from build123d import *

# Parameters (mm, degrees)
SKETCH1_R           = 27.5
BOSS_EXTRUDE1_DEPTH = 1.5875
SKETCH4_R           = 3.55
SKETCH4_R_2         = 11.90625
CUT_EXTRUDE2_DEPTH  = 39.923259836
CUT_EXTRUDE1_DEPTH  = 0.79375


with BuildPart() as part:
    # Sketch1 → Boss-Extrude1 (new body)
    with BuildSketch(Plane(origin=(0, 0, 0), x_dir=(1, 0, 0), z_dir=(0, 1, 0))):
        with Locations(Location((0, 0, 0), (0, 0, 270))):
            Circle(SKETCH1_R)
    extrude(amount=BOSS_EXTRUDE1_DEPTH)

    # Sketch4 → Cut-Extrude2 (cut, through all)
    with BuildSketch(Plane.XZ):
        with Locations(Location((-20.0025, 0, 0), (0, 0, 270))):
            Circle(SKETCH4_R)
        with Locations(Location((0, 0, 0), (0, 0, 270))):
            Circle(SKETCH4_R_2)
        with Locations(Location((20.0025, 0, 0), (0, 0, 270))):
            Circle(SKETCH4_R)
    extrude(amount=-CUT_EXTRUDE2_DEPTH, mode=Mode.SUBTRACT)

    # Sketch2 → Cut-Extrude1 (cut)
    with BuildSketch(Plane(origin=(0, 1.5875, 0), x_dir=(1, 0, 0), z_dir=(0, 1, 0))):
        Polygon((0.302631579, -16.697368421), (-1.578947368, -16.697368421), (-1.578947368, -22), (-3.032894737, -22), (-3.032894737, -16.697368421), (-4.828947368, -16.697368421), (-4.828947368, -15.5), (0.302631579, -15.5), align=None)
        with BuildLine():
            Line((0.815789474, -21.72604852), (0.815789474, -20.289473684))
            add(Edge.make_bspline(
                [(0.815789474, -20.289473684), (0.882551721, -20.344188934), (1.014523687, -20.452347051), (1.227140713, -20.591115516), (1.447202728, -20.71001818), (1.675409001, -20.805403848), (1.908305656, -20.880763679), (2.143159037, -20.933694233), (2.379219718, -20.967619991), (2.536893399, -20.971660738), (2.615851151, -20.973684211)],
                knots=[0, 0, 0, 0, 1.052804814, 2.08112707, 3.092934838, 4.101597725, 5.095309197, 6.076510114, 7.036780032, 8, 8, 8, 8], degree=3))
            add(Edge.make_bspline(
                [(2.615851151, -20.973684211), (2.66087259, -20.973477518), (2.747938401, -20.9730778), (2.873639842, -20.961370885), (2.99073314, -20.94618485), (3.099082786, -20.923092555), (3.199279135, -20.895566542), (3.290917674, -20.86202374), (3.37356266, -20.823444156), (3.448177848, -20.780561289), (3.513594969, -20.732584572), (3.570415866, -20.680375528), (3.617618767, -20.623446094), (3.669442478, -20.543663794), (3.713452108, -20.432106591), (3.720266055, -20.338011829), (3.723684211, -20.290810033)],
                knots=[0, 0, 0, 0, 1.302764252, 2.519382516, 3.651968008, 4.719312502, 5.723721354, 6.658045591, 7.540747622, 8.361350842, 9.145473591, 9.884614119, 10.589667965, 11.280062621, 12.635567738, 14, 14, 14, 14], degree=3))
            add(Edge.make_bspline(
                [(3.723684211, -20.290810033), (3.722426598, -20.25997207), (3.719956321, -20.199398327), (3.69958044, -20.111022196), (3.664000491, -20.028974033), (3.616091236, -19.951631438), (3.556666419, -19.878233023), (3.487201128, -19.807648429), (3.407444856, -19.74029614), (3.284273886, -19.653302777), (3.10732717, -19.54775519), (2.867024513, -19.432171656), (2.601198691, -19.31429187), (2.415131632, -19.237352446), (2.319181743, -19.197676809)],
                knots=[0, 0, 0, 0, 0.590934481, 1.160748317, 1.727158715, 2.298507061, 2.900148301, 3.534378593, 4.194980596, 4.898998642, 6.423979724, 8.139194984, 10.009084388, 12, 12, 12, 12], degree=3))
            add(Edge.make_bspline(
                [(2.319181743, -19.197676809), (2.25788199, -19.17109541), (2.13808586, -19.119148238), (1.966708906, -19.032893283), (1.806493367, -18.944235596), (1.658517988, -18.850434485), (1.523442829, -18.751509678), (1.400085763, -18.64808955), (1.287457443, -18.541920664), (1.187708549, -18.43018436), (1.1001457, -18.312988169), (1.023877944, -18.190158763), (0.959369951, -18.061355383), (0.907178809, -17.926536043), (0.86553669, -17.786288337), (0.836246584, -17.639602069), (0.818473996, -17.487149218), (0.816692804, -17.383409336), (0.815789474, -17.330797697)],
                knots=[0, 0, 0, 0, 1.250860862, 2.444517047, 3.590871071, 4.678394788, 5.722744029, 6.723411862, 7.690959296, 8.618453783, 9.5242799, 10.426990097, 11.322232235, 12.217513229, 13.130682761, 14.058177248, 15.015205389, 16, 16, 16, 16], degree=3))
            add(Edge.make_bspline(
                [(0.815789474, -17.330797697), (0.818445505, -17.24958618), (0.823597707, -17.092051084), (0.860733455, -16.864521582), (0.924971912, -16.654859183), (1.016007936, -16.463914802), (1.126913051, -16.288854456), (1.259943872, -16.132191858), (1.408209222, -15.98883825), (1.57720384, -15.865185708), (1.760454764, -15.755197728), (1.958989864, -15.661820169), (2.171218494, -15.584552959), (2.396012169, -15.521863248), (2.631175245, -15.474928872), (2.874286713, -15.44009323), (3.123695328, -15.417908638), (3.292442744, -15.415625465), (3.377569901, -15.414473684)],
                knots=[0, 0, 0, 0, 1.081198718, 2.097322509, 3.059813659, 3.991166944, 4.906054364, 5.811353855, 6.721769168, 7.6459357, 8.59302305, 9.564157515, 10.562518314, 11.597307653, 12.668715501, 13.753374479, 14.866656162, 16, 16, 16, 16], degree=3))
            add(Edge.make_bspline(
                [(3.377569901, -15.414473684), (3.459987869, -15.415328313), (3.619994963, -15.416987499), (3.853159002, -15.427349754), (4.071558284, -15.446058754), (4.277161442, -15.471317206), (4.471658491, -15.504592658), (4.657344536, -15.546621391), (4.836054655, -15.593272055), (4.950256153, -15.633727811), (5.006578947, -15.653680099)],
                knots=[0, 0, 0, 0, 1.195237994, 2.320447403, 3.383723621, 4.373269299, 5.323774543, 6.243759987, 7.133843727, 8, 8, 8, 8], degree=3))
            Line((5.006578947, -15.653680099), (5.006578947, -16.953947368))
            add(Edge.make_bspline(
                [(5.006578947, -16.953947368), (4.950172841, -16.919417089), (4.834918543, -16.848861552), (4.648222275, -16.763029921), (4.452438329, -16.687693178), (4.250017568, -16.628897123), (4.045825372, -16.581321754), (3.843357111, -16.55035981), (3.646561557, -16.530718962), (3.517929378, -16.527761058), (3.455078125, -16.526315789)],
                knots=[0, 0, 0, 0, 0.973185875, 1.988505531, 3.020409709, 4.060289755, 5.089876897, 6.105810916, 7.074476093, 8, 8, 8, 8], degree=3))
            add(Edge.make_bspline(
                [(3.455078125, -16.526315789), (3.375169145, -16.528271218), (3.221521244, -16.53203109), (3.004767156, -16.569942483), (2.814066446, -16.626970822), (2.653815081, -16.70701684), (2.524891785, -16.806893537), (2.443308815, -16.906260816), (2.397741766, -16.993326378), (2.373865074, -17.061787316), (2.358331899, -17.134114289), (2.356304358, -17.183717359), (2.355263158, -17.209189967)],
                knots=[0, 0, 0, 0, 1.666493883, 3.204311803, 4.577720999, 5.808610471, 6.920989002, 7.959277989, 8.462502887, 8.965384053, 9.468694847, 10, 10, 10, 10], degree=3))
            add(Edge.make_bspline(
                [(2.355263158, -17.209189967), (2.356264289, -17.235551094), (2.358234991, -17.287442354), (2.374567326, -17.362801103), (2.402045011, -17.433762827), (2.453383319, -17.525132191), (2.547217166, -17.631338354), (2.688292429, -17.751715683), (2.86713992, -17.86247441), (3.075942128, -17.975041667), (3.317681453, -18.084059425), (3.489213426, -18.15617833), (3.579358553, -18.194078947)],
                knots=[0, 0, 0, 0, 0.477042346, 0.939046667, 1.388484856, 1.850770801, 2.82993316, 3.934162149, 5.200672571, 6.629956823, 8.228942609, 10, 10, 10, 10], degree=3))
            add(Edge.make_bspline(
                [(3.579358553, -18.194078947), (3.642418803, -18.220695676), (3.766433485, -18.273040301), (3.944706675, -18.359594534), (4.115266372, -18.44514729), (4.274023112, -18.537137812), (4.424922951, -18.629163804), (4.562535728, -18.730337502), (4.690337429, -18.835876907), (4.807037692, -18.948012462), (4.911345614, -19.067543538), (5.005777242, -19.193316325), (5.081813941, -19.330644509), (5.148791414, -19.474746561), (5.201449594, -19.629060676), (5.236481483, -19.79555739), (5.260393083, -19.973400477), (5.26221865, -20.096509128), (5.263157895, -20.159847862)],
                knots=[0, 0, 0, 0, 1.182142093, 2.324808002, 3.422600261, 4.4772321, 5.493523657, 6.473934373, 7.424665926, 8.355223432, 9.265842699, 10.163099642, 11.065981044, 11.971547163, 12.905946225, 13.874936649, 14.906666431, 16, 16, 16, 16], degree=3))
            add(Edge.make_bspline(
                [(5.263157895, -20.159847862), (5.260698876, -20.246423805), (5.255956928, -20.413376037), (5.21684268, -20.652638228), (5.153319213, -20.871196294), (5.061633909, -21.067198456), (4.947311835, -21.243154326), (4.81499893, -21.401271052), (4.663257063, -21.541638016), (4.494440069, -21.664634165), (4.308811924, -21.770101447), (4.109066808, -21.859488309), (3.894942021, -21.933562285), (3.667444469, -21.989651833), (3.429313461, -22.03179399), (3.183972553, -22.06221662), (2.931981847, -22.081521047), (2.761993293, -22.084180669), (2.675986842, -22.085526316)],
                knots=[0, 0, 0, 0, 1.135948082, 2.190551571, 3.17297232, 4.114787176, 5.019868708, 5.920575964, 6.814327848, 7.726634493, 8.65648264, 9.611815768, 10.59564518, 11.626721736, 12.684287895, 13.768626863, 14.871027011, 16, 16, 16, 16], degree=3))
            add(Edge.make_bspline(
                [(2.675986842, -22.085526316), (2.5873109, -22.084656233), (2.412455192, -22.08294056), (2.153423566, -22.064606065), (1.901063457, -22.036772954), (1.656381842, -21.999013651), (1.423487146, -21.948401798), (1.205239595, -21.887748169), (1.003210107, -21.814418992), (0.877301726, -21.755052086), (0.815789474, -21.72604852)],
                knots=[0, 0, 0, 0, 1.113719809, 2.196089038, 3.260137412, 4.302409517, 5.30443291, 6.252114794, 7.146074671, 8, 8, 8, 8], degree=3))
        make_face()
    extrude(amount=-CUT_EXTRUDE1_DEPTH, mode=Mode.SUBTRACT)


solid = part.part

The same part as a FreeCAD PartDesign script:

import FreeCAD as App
import Part
import Sketcher

V = App.Vector
Q = App.Units.Quantity


def add_polygon(sketch, points):
    """Adds a closed chain of lines whose ends are joined by coincident constraints."""
    first, n = sketch.GeometryCount, len(points)
    for a, b in zip(points, points[1:] + points[:1]):
        sketch.addGeometry(Part.LineSegment(App.Vector(*a, 0), App.Vector(*b, 0)), False)
    for i in range(n):
        sketch.addConstraint(Sketcher.Constraint("Coincident", first + i, 2, first + (i + 1) % n, 1))

doc = App.newDocument("Part")
body = doc.addObject("PartDesign::Body", "Body")

# Sketch on XZ plane
sketch1 = body.newObject("Sketcher::SketchObject", "Sketch")
sketch1.AttachmentSupport = (doc.getObject("XZ_Plane"), [""])
sketch1.MapMode = "FlatFace"
sketch1.addGeometry(Part.Circle(V(0, 0, 0), V(0, 0, 1), 27.5), False)
sketch1.addConstraint([
    Sketcher.Constraint("Coincident", 0, 3, -1, 1),
    Sketcher.Constraint("Diameter", 0, 55.0),
])
pad1 = body.newObject("PartDesign::Pad", "Pad")
pad1.Profile = sketch1
pad1.Length = Q("0.0625 in")
pad1.Reversed = True

# Sketch on XZ plane
sketch2 = body.newObject("Sketcher::SketchObject", "Sketch001")
sketch2.AttachmentSupport = (doc.getObject("XZ_Plane"), [""])
sketch2.MapMode = "FlatFace"
sketch2.addGeometry([
    Part.Circle(V(-20.0025, 0, 0), V(0, 0, 1), 3.55),
    Part.Circle(V(0, 0, 0), V(0, 0, 1), 11.90625),
    Part.Circle(V(20.0025, 0, 0), V(0, 0, 1), 3.55),
], False)
sketch2.addConstraint([
    Sketcher.Constraint("Coincident", 1, 3, -1, 1),
    Sketcher.Constraint("Equal", 0, 2),
    Sketcher.Constraint("Symmetric", 0, 3, 2, 3, -1, 1),
    Sketcher.Constraint("PointOnObject", 0, 3, -1),
    Sketcher.Constraint("Diameter", 1, Q("0.9375 in")),
    Sketcher.Constraint("Diameter", 0, 7.1),
    Sketcher.Constraint("DistanceX", 0, 3, 2, 3, Q("1.575 in")),
])
pocket1 = body.newObject("PartDesign::Pocket", "Pocket")
pocket1.Profile = sketch2
pocket1.Type = "ThroughAll"

# Sketch on XZ plane
sketch3 = body.newObject("Sketcher::SketchObject", "Sketch002")
sketch3.AttachmentSupport = (doc.getObject("XZ_Plane"), [""])
sketch3.MapMode = "FlatFace"
sketch3.AttachmentOffset = App.Placement(V(0, 0, -0.0625 * 25.4), App.Rotation())
add_polygon(sketch3, [(-1.578947, 16.697368), (0.302632, 16.697368), (0.302632, 15.5), (-4.828947, 15.5), (-4.828947, 16.697368), (-3.032895, 16.697368), (-3.032895, 22), (-1.578947, 22)])  # lines 0-7
sketch3.addGeometry(Part.LineSegment(V(0.815789, 20.289474, 0), V(0.815789, 21.726049, 0)), False)  # 8
sketch3.addGeometry(Part.BSplineCurve([V(2.675987, 22.085526, 0), V(2.587311, 22.084656, 0), V(2.412455, 22.082941, 0), V(2.153424, 22.064606, 0), V(1.901063, 22.036773, 0), V(1.656382, 21.999014, 0), V(1.423487, 21.948402, 0), V(1.20524, 21.887748, 0), V(1.00321, 21.814419, 0), V(0.877302, 21.755052, 0), V(0.815789, 21.726049, 0)], [4, 1, 1, 1, 1, 1, 1, 1, 4], [0, 1.113719809, 2.196089038, 3.260137412, 4.302409517, 5.30443291, 6.252114794, 7.146074671, 8], False, 3, [1, 1, 1, 1, 1, 1, 1, 1, 1, 1, 1], False), False)  # 9
sketch3.addGeometry(Part.BSplineCurve([V(5.263158, 20.159848, 0), V(5.260699, 20.246424, 0), V(5.255957, 20.413376, 0), V(5.216843, 20.652638, 0), V(5.153319, 20.871196, 0), V(5.061634, 21.067198, 0), V(4.947312, 21.243154, 0), V(4.814999, 21.401271, 0), V(4.663257, 21.541638, 0), V(4.49444, 21.664634, 0), V(4.308812, 21.770101, 0), V(4.109067, 21.859488, 0), V(3.894942, 21.933562, 0), V(3.667444, 21.989652, 0), V(3.429313, 22.031794, 0), V(3.183973, 22.062217, 0), V(2.931982, 22.081521, 0), V(2.761993, 22.084181, 0), V(2.675987, 22.085526, 0)], [4, 1, 1, 1, 1, 1, 1, 1, 1, 1, 1, 1, 1, 1, 1, 1, 4], [0, 1.135948082, 2.190551571, 3.17297232, 4.114787176, 5.019868708, 5.920575964, 6.814327848, 7.726634493, 8.65648264, 9.611815768, 10.59564518, 11.626721736, 12.684287895, 13.768626863, 14.871027011, 16], False, 3, [1, 1, 1, 1, 1, 1, 1, 1, 1, 1, 1, 1, 1, 1, 1, 1, 1, 1, 1], False), False)  # 10
sketch3.addGeometry(Part.BSplineCurve([V(3.579359, 18.194079, 0), V(3.642419, 18.220696, 0), V(3.766433, 18.27304, 0), V(3.944707, 18.359595, 0), V(4.115266, 18.445147, 0), V(4.274023, 18.537138, 0), V(4.424923, 18.629164, 0), V(4.562536, 18.730338, 0), V(4.690337, 18.835877, 0), V(4.807038, 18.948012, 0), V(4.911346, 19.067544, 0), V(5.005777, 19.193316, 0), V(5.081814, 19.330645, 0), V(5.148791, 19.474747, 0), V(5.20145, 19.629061, 0), V(5.236481, 19.795557, 0), V(5.260393, 19.9734, 0), V(5.262219, 20.096509, 0), V(5.263158, 20.159848, 0)], [4, 1, 1, 1, 1, 1, 1, 1, 1, 1, 1, 1, 1, 1, 1, 1, 4], [0, 1.182142093, 2.324808002, 3.422600261, 4.4772321, 5.493523657, 6.473934373, 7.424665926, 8.355223432, 9.265842699, 10.163099642, 11.065981044, 11.971547163, 12.905946225, 13.874936649, 14.906666431, 16], False, 3, [1, 1, 1, 1, 1, 1, 1, 1, 1, 1, 1, 1, 1, 1, 1, 1, 1, 1, 1], False), False)  # 11
sketch3.addGeometry(Part.BSplineCurve([V(2.355263, 17.20919, 0), V(2.356264, 17.235551, 0), V(2.358235, 17.287442, 0), V(2.374567, 17.362801, 0), V(2.402045, 17.433763, 0), V(2.453383, 17.525132, 0), V(2.547217, 17.631338, 0), V(2.688292, 17.751716, 0), V(2.86714, 17.862474, 0), V(3.075942, 17.975042, 0), V(3.317681, 18.084059, 0), V(3.489213, 18.156178, 0), V(3.579359, 18.194079, 0)], [4, 1, 1, 1, 1, 1, 1, 1, 1, 1, 4], [0, 0.477042346, 0.939046667, 1.388484856, 1.850770801, 2.82993316, 3.934162149, 5.200672571, 6.629956823, 8.228942609, 10], False, 3, [1, 1, 1, 1, 1, 1, 1, 1, 1, 1, 1, 1, 1], False), False)  # 12
sketch3.addGeometry(Part.BSplineCurve([V(3.455078, 16.526316, 0), V(3.375169, 16.528271, 0), V(3.221521, 16.532031, 0), V(3.004767, 16.569942, 0), V(2.814066, 16.626971, 0), V(2.653815, 16.707017, 0), V(2.524892, 16.806894, 0), V(2.443309, 16.906261, 0), V(2.397742, 16.993326, 0), V(2.373865, 17.061787, 0), V(2.358332, 17.134114, 0), V(2.356304, 17.183717, 0), V(2.355263, 17.20919, 0)], [4, 1, 1, 1, 1, 1, 1, 1, 1, 1, 4], [0, 1.666493883, 3.204311803, 4.577720999, 5.808610471, 6.920989002, 7.959277989, 8.462502887, 8.965384053, 9.468694847, 10], False, 3, [1, 1, 1, 1, 1, 1, 1, 1, 1, 1, 1, 1, 1], False), False)  # 13
sketch3.addGeometry(Part.BSplineCurve([V(5.006579, 16.953947, 0), V(4.950173, 16.919417, 0), V(4.834919, 16.848862, 0), V(4.648222, 16.76303, 0), V(4.452438, 16.687693, 0), V(4.250018, 16.628897, 0), V(4.045825, 16.581322, 0), V(3.843357, 16.55036, 0), V(3.646562, 16.530719, 0), V(3.517929, 16.527761, 0), V(3.455078, 16.526316, 0)], [4, 1, 1, 1, 1, 1, 1, 1, 4], [0, 0.973185875, 1.988505531, 3.020409709, 4.060289755, 5.089876897, 6.105810916, 7.074476093, 8], False, 3, [1, 1, 1, 1, 1, 1, 1, 1, 1, 1, 1], False), False)  # 14
sketch3.addGeometry(Part.LineSegment(V(5.006579, 16.953947, 0), V(5.006579, 15.65368, 0)), False)  # 15
sketch3.addGeometry(Part.BSplineCurve([V(3.37757, 15.414474, 0), V(3.459988, 15.415328, 0), V(3.619995, 15.416987, 0), V(3.853159, 15.42735, 0), V(4.071558, 15.446059, 0), V(4.277161, 15.471317, 0), V(4.471658, 15.504593, 0), V(4.657345, 15.546621, 0), V(4.836055, 15.593272, 0), V(4.950256, 15.633728, 0), V(5.006579, 15.65368, 0)], [4, 1, 1, 1, 1, 1, 1, 1, 4], [0, 1.195237994, 2.320447403, 3.383723621, 4.373269299, 5.323774543, 6.243759987, 7.133843727, 8], False, 3, [1, 1, 1, 1, 1, 1, 1, 1, 1, 1, 1], False), False)  # 16
sketch3.addGeometry(Part.BSplineCurve([V(0.815789, 17.330798, 0), V(0.818446, 17.249586, 0), V(0.823598, 17.092051, 0), V(0.860733, 16.864522, 0), V(0.924972, 16.654859, 0), V(1.016008, 16.463915, 0), V(1.126913, 16.288854, 0), V(1.259944, 16.132192, 0), V(1.408209, 15.988838, 0), V(1.577204, 15.865186, 0), V(1.760455, 15.755198, 0), V(1.95899, 15.66182, 0), V(2.171218, 15.584553, 0), V(2.396012, 15.521863, 0), V(2.631175, 15.474929, 0), V(2.874287, 15.440093, 0), V(3.123695, 15.417909, 0), V(3.292443, 15.415625, 0), V(3.37757, 15.414474, 0)], [4, 1, 1, 1, 1, 1, 1, 1, 1, 1, 1, 1, 1, 1, 1, 1, 4], [0, 1.081198718, 2.097322509, 3.059813659, 3.991166944, 4.906054364, 5.811353855, 6.721769168, 7.6459357, 8.59302305, 9.564157515, 10.562518314, 11.597307653, 12.668715501, 13.753374479, 14.866656162, 16], False, 3, [1, 1, 1, 1, 1, 1, 1, 1, 1, 1, 1, 1, 1, 1, 1, 1, 1, 1, 1], False), False)  # 17
sketch3.addGeometry(Part.BSplineCurve([V(2.319182, 19.197677, 0), V(2.257882, 19.171095, 0), V(2.138086, 19.119148, 0), V(1.966709, 19.032893, 0), V(1.806493, 18.944236, 0), V(1.658518, 18.850434, 0), V(1.523443, 18.75151, 0), V(1.400086, 18.64809, 0), V(1.287457, 18.541921, 0), V(1.187709, 18.430184, 0), V(1.100146, 18.312988, 0), V(1.023878, 18.190159, 0), V(0.95937, 18.061355, 0), V(0.907179, 17.926536, 0), V(0.865537, 17.786288, 0), V(0.836247, 17.639602, 0), V(0.818474, 17.487149, 0), V(0.816693, 17.383409, 0), V(0.815789, 17.330798, 0)], [4, 1, 1, 1, 1, 1, 1, 1, 1, 1, 1, 1, 1, 1, 1, 1, 4], [0, 1.250860862, 2.444517047, 3.590871071, 4.678394788, 5.722744029, 6.723411862, 7.690959296, 8.618453783, 9.5242799, 10.426990097, 11.322232235, 12.217513229, 13.130682761, 14.058177248, 15.015205389, 16], False, 3, [1, 1, 1, 1, 1, 1, 1, 1, 1, 1, 1, 1, 1, 1, 1, 1, 1, 1, 1], False), False)  # 18
sketch3.addGeometry(Part.BSplineCurve([V(3.723684, 20.29081, 0), V(3.722427, 20.259972, 0), V(3.719956, 20.199398, 0), V(3.69958, 20.111022, 0), V(3.664, 20.028974, 0), V(3.616091, 19.951631, 0), V(3.556666, 19.878233, 0), V(3.487201, 19.807648, 0), V(3.407445, 19.740296, 0), V(3.284274, 19.653303, 0), V(3.107327, 19.547755, 0), V(2.867025, 19.432172, 0), V(2.601199, 19.314292, 0), V(2.415132, 19.237352, 0), V(2.319182, 19.197677, 0)], [4, 1, 1, 1, 1, 1, 1, 1, 1, 1, 1, 1, 4], [0, 0.590934481, 1.160748317, 1.727158715, 2.298507061, 2.900148301, 3.534378593, 4.194980596, 4.898998642, 6.423979724, 8.139194984, 10.009084388, 12], False, 3, [1, 1, 1, 1, 1, 1, 1, 1, 1, 1, 1, 1, 1, 1, 1], False), False)  # 19
sketch3.addGeometry(Part.BSplineCurve([V(2.615851, 20.973684, 0), V(2.660873, 20.973478, 0), V(2.747938, 20.973078, 0), V(2.87364, 20.961371, 0), V(2.990733, 20.946185, 0), V(3.099083, 20.923093, 0), V(3.199279, 20.895567, 0), V(3.290918, 20.862024, 0), V(3.373563, 20.823444, 0), V(3.448178, 20.780561, 0), V(3.513595, 20.732585, 0), V(3.570416, 20.680376, 0), V(3.617619, 20.623446, 0), V(3.669442, 20.543664, 0), V(3.713452, 20.432107, 0), V(3.720266, 20.338012, 0), V(3.723684, 20.29081, 0)], [4, 1, 1, 1, 1, 1, 1, 1, 1, 1, 1, 1, 1, 1, 4], [0, 1.302764252, 2.519382516, 3.651968008, 4.719312502, 5.723721354, 6.658045591, 7.540747622, 8.361350842, 9.145473591, 9.884614119, 10.589667965, 11.280062621, 12.635567738, 14], False, 3, [1, 1, 1, 1, 1, 1, 1, 1, 1, 1, 1, 1, 1, 1, 1, 1, 1], False), False)  # 20
sketch3.addGeometry(Part.BSplineCurve([V(0.815789, 20.289474, 0), V(0.882552, 20.344189, 0), V(1.014524, 20.452347, 0), V(1.227141, 20.591116, 0), V(1.447203, 20.710018, 0), V(1.675409, 20.805404, 0), V(1.908306, 20.880764, 0), V(2.143159, 20.933694, 0), V(2.37922, 20.96762, 0), V(2.536893, 20.971661, 0), V(2.615851, 20.973684, 0)], [4, 1, 1, 1, 1, 1, 1, 1, 4], [0, 1.052804814, 2.08112707, 3.092934838, 4.101597725, 5.095309197, 6.076510114, 7.036780032, 8], False, 3, [1, 1, 1, 1, 1, 1, 1, 1, 1, 1, 1], False), False)  # 21
sketch3.addConstraint([
    Sketcher.Constraint("Block", 9),
    Sketcher.Constraint("Block", 10),
    Sketcher.Constraint("Block", 11),
    Sketcher.Constraint("Block", 12),
    Sketcher.Constraint("Block", 13),
    Sketcher.Constraint("Block", 14),
    Sketcher.Constraint("Block", 16),
    Sketcher.Constraint("Block", 17),
    Sketcher.Constraint("Block", 18),
    Sketcher.Constraint("Block", 19),
    Sketcher.Constraint("Block", 20),
    Sketcher.Constraint("Block", 21),
    Sketcher.Constraint("Coincident", 8, 2, 9, 2),
    Sketcher.Constraint("Coincident", 14, 1, 15, 1),
    Sketcher.Constraint("Coincident", 15, 2, 16, 2),
    Sketcher.Constraint("Coincident", 21, 1, 8, 1),
    Sketcher.Constraint("Horizontal", 0),
    Sketcher.Constraint("Vertical", 1),
    Sketcher.Constraint("Horizontal", 2),
    Sketcher.Constraint("Vertical", 3),
    Sketcher.Constraint("Horizontal", 4),
    Sketcher.Constraint("Vertical", 5),
    Sketcher.Constraint("Horizontal", 6),
    Sketcher.Constraint("Vertical", 7),
    Sketcher.Constraint("Horizontal", 0, 2, 3, 2),
    Sketcher.Constraint("DistanceX", 0, 1, 0, 2, 1.881579),
    Sketcher.Constraint("DistanceX", 2, 2, 2, 1, 5.131579),
    Sketcher.Constraint("DistanceY", 1, 2, 1, 1, 1.197368),
    Sketcher.Constraint("DistanceY", 5, 1, 5, 2, 5.302632),
    Sketcher.Constraint("DistanceY", -1, 1, 1, 2, 15.5),
    Sketcher.Constraint("DistanceX", 4, 1, 4, 2, 1.796053),
    Sketcher.Constraint("DistanceX", -1, 1, 0, 2, 0.302632),
])
pocket2 = body.newObject("PartDesign::Pocket", "Pocket001")
pocket2.Profile = sketch3
pocket2.Length = Q("0.03125 in")
pocket2.Reversed = True

doc.recompute()
